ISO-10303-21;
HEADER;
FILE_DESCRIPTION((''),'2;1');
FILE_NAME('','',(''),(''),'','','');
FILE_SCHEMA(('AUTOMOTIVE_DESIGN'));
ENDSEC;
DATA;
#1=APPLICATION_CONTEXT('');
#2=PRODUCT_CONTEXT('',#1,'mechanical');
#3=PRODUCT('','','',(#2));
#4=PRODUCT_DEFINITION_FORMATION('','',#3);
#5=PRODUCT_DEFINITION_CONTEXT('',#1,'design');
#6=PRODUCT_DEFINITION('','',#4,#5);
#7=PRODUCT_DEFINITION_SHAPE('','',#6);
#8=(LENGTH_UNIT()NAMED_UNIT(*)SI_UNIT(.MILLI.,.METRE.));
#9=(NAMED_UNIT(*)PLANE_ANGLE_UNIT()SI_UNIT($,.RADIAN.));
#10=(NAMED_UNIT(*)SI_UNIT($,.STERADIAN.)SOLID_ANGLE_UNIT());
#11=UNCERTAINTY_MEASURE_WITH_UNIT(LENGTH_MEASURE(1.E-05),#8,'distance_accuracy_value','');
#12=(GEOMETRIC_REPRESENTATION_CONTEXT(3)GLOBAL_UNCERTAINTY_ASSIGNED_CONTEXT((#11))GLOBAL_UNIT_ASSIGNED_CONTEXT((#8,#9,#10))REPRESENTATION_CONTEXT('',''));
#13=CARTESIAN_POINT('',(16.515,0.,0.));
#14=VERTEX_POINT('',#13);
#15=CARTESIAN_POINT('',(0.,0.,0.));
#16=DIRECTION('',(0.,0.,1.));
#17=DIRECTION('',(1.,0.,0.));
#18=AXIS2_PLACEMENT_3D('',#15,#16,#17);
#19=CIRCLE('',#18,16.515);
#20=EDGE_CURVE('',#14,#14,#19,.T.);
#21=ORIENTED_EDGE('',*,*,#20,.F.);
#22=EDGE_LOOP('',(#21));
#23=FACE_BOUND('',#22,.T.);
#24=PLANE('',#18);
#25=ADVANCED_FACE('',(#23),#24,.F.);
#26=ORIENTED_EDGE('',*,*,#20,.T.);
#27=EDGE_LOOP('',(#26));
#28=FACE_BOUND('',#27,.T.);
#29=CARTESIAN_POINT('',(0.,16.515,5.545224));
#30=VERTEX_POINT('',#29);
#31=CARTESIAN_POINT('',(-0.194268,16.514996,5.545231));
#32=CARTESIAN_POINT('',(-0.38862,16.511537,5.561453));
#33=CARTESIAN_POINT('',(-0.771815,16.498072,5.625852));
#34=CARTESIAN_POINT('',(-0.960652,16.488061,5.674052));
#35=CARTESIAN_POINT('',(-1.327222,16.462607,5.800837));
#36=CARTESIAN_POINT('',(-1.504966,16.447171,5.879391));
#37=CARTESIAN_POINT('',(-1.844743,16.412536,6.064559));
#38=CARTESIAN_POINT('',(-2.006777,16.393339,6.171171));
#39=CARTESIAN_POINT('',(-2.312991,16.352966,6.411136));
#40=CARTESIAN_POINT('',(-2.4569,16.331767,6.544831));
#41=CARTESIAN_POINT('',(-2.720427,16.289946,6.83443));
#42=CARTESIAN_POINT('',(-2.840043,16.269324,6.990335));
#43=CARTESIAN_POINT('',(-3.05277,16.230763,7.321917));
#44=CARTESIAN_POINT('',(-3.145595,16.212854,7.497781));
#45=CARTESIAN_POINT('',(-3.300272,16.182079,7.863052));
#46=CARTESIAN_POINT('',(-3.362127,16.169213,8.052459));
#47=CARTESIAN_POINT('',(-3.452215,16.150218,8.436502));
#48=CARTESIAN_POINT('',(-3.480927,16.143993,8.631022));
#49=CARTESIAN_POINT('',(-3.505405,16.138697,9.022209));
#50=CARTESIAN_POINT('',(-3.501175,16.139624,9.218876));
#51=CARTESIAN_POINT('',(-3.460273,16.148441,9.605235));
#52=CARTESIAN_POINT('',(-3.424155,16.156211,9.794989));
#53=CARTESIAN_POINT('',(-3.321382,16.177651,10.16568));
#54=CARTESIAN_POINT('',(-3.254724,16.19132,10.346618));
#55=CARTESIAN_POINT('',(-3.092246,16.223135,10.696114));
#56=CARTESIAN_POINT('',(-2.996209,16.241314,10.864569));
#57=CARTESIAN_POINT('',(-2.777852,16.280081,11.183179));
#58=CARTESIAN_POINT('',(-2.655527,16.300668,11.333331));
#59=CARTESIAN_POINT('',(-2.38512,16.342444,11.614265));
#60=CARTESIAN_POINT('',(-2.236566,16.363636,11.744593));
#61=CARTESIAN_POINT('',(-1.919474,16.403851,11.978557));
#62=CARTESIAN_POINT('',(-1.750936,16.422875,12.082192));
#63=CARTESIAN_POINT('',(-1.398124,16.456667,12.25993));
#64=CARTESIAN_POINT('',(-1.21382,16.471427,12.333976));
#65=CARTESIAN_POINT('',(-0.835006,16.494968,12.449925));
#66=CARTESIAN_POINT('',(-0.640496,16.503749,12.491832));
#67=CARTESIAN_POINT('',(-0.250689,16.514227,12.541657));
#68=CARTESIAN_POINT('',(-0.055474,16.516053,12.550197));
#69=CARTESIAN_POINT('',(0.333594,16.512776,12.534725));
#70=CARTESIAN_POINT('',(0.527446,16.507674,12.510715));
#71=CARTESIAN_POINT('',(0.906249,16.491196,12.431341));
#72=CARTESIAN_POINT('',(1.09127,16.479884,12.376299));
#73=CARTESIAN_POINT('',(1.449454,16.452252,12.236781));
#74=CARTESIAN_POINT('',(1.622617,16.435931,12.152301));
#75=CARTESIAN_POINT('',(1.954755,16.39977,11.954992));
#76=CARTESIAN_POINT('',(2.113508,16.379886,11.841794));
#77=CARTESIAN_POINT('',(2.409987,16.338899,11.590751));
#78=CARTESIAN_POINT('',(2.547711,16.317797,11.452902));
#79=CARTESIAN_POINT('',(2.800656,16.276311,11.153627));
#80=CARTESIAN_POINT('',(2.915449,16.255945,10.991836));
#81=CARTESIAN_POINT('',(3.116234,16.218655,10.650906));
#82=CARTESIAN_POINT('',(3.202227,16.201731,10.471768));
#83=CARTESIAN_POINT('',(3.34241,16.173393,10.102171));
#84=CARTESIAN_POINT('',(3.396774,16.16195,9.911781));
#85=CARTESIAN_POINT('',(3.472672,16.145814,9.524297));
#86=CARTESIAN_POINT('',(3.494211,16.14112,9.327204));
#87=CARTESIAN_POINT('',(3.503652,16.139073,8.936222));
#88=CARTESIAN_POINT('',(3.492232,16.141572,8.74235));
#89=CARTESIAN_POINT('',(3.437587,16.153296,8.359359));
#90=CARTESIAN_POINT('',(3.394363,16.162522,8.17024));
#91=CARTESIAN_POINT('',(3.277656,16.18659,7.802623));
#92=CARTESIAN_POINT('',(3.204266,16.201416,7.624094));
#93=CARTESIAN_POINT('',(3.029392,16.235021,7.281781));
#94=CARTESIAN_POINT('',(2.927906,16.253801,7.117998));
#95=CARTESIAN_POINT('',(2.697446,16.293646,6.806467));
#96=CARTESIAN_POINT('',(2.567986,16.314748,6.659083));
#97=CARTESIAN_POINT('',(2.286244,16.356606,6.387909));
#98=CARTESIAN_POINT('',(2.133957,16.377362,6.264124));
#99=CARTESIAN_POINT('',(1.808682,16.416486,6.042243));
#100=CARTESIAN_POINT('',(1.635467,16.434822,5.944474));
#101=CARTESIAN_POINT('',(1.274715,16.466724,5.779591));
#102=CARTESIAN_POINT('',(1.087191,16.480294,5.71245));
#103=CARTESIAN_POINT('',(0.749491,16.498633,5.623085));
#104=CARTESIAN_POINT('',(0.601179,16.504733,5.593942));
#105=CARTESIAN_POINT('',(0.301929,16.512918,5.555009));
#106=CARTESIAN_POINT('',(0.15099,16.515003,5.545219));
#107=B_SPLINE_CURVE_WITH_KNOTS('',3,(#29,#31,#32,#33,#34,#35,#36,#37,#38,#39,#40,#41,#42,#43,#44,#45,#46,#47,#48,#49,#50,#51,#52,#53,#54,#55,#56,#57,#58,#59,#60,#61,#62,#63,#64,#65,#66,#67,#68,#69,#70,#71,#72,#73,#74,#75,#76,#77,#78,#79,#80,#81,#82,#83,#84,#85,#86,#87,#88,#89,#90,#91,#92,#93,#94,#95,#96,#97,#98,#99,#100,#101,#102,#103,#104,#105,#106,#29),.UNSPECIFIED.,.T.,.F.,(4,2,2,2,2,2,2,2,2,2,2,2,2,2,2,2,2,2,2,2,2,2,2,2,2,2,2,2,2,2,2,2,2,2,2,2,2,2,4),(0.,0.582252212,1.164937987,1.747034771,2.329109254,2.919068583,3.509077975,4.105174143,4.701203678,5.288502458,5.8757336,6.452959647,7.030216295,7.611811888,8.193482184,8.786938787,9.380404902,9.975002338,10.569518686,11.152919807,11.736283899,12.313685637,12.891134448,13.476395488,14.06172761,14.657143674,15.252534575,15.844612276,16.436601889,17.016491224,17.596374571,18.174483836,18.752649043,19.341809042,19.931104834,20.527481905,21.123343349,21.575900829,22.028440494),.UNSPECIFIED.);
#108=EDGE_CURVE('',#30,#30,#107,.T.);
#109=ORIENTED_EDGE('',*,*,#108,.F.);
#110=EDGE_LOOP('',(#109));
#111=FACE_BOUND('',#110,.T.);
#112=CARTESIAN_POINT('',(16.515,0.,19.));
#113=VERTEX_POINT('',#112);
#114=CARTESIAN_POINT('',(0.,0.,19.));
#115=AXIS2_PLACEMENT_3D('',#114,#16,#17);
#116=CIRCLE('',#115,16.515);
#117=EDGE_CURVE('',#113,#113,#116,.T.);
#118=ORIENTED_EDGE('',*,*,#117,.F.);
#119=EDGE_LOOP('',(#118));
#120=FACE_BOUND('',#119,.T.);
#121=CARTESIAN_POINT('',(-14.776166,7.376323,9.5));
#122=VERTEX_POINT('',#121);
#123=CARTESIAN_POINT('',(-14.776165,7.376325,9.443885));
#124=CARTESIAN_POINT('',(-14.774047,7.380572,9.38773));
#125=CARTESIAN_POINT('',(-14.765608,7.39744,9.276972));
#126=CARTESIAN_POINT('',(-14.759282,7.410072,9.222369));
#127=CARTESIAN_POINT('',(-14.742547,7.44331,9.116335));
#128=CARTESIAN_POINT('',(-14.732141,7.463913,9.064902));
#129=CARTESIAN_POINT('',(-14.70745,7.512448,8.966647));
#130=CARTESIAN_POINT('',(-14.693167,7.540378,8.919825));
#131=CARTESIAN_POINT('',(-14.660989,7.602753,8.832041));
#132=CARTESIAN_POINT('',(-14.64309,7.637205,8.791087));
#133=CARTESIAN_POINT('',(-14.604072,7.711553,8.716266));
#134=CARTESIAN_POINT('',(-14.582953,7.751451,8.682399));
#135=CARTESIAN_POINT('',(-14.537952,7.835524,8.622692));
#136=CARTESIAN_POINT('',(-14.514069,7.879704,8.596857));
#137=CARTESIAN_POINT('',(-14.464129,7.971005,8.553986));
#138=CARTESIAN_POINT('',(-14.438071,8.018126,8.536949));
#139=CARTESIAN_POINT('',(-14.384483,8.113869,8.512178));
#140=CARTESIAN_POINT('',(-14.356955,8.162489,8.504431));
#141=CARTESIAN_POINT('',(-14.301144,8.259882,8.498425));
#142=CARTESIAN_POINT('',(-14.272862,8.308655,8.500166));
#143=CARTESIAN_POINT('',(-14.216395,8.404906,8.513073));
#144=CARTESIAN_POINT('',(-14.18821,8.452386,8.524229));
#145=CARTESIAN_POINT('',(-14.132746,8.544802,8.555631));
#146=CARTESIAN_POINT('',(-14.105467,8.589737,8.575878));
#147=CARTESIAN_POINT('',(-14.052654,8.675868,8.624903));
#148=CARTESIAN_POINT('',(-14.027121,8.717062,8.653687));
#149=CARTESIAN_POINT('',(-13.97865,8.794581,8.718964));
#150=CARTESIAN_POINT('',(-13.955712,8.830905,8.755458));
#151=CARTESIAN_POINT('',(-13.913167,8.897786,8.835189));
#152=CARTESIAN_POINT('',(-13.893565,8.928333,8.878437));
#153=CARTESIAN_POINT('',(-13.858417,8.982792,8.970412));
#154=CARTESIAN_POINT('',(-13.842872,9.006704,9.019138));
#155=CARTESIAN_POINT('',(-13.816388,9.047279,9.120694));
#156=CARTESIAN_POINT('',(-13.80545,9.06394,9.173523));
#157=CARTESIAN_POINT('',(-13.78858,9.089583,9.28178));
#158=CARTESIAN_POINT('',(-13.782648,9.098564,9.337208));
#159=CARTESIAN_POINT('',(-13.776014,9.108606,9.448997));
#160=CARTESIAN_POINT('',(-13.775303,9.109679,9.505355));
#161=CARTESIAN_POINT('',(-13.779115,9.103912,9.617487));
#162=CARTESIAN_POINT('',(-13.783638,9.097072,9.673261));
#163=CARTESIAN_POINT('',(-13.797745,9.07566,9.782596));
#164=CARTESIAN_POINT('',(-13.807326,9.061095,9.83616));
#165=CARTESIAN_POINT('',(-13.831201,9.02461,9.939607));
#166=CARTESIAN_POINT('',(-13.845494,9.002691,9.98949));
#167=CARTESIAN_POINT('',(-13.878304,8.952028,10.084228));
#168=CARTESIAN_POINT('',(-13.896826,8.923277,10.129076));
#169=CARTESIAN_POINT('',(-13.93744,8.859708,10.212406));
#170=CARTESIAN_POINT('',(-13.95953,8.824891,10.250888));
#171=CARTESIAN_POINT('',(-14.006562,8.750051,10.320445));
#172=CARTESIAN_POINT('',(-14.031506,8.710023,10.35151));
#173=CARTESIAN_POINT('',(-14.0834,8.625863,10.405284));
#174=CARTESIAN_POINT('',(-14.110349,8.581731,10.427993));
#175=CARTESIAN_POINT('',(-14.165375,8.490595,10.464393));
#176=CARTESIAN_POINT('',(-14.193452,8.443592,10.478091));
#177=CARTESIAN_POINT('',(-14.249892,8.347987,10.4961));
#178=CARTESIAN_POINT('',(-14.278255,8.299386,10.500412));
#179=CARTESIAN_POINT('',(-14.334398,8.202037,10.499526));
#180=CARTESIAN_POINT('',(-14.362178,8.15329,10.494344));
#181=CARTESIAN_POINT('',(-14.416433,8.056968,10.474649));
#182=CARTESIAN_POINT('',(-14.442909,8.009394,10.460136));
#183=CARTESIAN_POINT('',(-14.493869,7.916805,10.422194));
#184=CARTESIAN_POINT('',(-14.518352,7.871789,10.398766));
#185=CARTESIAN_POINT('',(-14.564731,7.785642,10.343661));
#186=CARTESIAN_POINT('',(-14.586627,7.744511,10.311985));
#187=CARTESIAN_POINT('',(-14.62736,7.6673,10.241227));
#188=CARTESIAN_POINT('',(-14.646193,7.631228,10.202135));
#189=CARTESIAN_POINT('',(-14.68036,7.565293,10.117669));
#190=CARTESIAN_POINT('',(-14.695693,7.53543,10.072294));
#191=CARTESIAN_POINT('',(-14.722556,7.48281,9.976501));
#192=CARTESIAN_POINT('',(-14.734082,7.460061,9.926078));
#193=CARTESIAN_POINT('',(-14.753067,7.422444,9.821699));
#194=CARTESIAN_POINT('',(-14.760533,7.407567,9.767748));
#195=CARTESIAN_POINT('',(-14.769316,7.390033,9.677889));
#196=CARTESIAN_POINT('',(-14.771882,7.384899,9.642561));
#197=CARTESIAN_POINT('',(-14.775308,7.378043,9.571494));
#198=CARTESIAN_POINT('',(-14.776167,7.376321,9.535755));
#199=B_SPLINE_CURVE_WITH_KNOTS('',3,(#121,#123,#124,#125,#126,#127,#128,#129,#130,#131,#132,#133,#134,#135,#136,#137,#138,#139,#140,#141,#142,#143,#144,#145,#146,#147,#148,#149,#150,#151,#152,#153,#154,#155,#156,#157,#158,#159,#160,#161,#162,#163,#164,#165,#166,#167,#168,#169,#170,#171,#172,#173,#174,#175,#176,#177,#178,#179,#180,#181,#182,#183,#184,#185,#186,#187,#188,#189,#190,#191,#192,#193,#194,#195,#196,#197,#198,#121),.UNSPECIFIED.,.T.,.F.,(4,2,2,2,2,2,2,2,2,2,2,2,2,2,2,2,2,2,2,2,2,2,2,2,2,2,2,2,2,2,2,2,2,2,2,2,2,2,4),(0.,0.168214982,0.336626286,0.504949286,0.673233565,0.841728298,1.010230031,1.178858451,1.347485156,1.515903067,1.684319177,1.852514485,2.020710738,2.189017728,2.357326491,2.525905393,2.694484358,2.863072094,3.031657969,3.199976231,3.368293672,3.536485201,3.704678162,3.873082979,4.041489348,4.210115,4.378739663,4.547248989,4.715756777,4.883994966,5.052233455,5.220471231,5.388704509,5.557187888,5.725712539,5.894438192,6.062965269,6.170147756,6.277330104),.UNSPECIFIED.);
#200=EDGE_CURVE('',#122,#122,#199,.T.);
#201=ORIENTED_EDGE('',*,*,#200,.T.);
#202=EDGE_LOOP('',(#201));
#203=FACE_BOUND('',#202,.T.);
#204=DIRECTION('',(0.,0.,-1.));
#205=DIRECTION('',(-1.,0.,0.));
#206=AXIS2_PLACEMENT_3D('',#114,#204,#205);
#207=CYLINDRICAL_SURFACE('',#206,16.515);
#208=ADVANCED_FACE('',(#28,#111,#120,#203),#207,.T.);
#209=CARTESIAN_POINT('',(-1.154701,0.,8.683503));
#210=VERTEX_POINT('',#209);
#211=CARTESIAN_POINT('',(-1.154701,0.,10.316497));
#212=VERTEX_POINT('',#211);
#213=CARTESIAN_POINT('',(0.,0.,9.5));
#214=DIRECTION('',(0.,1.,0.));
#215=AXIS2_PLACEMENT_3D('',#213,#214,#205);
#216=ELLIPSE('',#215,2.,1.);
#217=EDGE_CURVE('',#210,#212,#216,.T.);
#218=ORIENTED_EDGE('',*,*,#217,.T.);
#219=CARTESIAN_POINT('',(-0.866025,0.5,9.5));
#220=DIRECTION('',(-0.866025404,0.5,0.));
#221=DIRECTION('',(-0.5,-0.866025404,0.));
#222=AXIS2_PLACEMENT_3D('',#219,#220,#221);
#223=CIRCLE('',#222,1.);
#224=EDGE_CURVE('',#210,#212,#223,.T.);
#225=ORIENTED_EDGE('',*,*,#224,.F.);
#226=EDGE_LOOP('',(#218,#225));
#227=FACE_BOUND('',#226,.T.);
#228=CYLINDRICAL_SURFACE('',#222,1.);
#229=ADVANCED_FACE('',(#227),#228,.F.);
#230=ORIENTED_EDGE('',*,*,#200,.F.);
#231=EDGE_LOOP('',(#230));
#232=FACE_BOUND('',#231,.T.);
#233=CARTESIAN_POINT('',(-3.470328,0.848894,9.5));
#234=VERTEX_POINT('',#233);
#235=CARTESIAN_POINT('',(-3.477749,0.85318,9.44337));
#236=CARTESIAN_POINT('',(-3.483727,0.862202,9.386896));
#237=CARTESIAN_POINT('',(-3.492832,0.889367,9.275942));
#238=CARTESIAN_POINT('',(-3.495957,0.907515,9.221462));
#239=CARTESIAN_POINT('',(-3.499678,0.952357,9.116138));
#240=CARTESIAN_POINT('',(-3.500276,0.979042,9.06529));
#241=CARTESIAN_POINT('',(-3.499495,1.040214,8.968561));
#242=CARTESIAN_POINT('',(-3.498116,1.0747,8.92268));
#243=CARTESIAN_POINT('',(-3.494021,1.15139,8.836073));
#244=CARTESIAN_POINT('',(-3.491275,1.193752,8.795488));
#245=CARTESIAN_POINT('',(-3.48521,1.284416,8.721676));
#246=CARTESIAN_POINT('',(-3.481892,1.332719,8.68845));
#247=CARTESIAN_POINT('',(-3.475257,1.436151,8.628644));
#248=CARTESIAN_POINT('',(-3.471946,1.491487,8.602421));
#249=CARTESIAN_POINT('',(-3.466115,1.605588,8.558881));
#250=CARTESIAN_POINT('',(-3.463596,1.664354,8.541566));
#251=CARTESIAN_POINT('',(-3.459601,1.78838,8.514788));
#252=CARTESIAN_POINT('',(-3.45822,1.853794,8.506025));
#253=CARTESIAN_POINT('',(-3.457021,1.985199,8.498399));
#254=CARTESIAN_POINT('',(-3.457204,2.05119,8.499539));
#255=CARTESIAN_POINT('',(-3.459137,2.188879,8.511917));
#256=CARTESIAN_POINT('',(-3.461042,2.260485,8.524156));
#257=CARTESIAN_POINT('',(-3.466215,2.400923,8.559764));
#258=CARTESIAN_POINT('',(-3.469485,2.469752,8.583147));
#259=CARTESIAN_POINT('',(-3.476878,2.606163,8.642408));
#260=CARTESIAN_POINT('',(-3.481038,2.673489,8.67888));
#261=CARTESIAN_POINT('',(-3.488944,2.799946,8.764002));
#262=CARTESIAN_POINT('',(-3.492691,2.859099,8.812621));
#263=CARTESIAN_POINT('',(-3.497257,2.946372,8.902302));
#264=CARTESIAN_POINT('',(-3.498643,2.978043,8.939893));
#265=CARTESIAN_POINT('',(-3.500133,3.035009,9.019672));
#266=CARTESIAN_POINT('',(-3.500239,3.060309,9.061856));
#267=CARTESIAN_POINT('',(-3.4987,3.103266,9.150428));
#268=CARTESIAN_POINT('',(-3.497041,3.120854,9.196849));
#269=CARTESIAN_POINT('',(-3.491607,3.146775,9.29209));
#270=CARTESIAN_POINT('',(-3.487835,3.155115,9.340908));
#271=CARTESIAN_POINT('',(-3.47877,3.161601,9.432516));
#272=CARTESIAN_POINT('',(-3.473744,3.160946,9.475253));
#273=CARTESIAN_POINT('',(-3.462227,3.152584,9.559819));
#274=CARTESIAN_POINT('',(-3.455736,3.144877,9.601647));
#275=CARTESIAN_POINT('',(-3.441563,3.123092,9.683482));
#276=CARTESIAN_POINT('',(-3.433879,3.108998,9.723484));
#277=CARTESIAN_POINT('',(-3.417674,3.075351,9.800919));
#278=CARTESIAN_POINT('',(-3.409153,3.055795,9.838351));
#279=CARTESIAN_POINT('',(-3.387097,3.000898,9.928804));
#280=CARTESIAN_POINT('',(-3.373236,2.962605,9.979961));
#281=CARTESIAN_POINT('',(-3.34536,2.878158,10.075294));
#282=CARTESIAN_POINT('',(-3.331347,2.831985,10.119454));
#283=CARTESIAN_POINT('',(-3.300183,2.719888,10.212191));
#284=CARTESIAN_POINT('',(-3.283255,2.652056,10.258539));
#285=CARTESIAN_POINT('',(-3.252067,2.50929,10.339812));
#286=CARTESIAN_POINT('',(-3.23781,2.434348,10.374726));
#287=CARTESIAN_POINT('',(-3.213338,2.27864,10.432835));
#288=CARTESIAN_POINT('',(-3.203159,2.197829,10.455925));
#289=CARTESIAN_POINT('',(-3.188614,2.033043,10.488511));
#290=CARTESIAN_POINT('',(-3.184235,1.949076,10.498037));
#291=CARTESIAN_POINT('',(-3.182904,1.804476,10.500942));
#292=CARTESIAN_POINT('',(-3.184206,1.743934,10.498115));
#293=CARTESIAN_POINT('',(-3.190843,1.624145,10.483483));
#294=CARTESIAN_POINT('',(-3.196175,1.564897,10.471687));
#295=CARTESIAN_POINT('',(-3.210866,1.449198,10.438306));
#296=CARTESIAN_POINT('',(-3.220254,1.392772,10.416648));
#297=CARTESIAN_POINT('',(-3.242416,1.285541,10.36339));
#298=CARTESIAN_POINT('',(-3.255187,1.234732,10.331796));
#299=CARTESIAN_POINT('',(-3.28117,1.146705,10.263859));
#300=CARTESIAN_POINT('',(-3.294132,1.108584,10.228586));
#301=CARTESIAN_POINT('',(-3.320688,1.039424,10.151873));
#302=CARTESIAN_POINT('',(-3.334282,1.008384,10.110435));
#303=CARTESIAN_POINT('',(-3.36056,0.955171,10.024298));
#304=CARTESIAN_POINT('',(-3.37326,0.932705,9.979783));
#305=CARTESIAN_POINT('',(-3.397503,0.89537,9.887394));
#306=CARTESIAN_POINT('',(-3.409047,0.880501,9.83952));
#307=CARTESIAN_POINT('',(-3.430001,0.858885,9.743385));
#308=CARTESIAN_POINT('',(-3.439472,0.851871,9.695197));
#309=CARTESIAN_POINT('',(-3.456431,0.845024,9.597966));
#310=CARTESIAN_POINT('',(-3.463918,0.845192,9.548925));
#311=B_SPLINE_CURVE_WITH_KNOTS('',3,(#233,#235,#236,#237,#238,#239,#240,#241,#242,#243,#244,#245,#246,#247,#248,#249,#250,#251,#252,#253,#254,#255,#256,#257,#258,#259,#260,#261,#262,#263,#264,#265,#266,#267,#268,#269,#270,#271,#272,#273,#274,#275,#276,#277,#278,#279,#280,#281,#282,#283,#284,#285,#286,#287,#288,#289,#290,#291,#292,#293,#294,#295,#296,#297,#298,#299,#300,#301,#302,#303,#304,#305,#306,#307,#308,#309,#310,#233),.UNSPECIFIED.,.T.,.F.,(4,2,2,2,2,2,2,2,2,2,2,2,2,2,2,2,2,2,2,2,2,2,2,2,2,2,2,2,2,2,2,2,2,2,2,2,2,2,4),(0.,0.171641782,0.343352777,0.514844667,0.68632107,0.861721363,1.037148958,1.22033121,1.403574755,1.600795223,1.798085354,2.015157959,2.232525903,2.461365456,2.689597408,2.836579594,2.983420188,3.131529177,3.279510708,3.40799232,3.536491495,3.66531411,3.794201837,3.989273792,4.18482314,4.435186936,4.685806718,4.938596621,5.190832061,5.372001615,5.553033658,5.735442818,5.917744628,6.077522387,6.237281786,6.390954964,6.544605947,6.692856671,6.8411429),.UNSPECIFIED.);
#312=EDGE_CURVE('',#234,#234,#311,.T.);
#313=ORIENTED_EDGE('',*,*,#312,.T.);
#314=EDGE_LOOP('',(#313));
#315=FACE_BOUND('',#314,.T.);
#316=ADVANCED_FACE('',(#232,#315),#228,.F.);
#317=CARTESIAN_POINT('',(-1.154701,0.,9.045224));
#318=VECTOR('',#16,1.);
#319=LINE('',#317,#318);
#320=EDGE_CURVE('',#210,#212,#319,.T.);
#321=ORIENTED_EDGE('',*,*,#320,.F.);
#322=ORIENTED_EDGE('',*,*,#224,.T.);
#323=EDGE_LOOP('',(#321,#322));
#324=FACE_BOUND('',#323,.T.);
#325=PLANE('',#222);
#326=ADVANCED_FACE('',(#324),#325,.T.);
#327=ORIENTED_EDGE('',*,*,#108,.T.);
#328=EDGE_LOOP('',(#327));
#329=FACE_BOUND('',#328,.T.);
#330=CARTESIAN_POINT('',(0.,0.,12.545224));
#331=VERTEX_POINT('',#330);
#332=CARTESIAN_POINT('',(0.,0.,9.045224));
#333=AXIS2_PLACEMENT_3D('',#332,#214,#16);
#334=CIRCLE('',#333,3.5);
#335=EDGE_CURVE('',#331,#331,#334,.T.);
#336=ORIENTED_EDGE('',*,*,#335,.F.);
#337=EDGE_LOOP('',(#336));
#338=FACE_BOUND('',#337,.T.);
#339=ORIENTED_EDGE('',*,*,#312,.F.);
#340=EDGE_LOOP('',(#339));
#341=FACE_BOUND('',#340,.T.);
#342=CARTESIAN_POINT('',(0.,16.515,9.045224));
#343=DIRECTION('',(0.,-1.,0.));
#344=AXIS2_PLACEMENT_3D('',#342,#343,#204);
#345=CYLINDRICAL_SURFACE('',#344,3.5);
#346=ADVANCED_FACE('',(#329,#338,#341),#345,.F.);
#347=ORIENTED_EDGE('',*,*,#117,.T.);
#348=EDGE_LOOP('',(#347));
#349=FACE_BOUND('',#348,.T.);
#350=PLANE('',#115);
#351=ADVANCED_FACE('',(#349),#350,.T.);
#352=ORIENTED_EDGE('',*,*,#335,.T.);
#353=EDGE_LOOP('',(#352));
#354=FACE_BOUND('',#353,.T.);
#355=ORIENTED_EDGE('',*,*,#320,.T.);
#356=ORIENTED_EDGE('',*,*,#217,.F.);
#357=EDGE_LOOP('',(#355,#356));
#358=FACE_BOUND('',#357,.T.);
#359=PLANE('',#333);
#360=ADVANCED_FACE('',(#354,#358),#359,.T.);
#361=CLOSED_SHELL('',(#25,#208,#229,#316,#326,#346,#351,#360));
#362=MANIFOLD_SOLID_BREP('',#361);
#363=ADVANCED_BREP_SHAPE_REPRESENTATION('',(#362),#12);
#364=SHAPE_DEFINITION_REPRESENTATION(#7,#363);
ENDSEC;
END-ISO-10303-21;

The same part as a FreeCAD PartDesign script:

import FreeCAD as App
import Part
import Sketcher
Q = App.Units.Quantity

doc = App.newDocument("Part")
body = doc.addObject("PartDesign::Body", "Body")

sketch1 = doc.addObject("Sketcher::SketchObject", "Sketch")
body.addObject(sketch1)
sketch1.AttachmentSupport = (doc.XY_Plane, [""])
sketch1.MapMode = "FlatFace"
sketch1.addGeometry(Part.Circle(App.Vector(0, 0, 0), App.Vector(0, 0, 1), 17), False)
sketch1.addConstraint([
    Sketcher.Constraint("Coincident", 0, 3, -1, 1),
    Sketcher.Constraint("Diameter", 0, Q("33.03 mm")),
])
pad1 = doc.addObject("PartDesign::Pad", "Pad")
body.addObject(pad1)
pad1.Profile = sketch1
pad1.Length = 19

sketch2 = doc.addObject("Sketcher::SketchObject", "Sketch001")
body.addObject(sketch2)
sketch2.AttachmentSupport = (doc.XZ_Plane, [""])
sketch2.MapMode = "FlatFace"
sketch2.addGeometry(Part.Circle(App.Vector(0, 9, 0), App.Vector(0, 0, 1), 3.5), False)
sketch2.addConstraint([
    Sketcher.Constraint("PointOnObject", 0, 3, -2),
    Sketcher.Constraint("Diameter", 0, Q("7 mm")),
    Sketcher.Constraint("DistanceY", -1, 1, 0, 3, Q("9.045224 mm")),
])
pocket1 = doc.addObject("PartDesign::Pocket", "Pocket")
body.addObject(pocket1)
pocket1.Profile = sketch2
pocket1.Type = "ThroughAll"

sketch3 = doc.addObject("Sketcher::SketchObject", "Sketch002")
body.addObject(sketch3)
sketch3.Placement = App.Placement(App.Vector(-17.320508, 10, 0), App.Rotation(App.Vector(0, 0, 1), App.Vector(0.5, 0.866025404, 0), App.Vector(-0.866025404, 0.5, 0), "ZXY"))
sketch3.addGeometry(Part.Circle(App.Vector(9.5, 0, 0), App.Vector(0, 0, 1), 1), False)
sketch3.addConstraint([
    Sketcher.Constraint("PointOnObject", 0, 3, -1),
    Sketcher.Constraint("Diameter", 0, Q("2 mm")),
    Sketcher.Constraint("DistanceX", -1, 1, 0, 3, Q("9.5 mm")),
])
pocket2 = doc.addObject("PartDesign::Pocket", "Pocket001")
body.addObject(pocket2)
pocket2.Profile = sketch3
pocket2.Length = 19

doc.recompute()
